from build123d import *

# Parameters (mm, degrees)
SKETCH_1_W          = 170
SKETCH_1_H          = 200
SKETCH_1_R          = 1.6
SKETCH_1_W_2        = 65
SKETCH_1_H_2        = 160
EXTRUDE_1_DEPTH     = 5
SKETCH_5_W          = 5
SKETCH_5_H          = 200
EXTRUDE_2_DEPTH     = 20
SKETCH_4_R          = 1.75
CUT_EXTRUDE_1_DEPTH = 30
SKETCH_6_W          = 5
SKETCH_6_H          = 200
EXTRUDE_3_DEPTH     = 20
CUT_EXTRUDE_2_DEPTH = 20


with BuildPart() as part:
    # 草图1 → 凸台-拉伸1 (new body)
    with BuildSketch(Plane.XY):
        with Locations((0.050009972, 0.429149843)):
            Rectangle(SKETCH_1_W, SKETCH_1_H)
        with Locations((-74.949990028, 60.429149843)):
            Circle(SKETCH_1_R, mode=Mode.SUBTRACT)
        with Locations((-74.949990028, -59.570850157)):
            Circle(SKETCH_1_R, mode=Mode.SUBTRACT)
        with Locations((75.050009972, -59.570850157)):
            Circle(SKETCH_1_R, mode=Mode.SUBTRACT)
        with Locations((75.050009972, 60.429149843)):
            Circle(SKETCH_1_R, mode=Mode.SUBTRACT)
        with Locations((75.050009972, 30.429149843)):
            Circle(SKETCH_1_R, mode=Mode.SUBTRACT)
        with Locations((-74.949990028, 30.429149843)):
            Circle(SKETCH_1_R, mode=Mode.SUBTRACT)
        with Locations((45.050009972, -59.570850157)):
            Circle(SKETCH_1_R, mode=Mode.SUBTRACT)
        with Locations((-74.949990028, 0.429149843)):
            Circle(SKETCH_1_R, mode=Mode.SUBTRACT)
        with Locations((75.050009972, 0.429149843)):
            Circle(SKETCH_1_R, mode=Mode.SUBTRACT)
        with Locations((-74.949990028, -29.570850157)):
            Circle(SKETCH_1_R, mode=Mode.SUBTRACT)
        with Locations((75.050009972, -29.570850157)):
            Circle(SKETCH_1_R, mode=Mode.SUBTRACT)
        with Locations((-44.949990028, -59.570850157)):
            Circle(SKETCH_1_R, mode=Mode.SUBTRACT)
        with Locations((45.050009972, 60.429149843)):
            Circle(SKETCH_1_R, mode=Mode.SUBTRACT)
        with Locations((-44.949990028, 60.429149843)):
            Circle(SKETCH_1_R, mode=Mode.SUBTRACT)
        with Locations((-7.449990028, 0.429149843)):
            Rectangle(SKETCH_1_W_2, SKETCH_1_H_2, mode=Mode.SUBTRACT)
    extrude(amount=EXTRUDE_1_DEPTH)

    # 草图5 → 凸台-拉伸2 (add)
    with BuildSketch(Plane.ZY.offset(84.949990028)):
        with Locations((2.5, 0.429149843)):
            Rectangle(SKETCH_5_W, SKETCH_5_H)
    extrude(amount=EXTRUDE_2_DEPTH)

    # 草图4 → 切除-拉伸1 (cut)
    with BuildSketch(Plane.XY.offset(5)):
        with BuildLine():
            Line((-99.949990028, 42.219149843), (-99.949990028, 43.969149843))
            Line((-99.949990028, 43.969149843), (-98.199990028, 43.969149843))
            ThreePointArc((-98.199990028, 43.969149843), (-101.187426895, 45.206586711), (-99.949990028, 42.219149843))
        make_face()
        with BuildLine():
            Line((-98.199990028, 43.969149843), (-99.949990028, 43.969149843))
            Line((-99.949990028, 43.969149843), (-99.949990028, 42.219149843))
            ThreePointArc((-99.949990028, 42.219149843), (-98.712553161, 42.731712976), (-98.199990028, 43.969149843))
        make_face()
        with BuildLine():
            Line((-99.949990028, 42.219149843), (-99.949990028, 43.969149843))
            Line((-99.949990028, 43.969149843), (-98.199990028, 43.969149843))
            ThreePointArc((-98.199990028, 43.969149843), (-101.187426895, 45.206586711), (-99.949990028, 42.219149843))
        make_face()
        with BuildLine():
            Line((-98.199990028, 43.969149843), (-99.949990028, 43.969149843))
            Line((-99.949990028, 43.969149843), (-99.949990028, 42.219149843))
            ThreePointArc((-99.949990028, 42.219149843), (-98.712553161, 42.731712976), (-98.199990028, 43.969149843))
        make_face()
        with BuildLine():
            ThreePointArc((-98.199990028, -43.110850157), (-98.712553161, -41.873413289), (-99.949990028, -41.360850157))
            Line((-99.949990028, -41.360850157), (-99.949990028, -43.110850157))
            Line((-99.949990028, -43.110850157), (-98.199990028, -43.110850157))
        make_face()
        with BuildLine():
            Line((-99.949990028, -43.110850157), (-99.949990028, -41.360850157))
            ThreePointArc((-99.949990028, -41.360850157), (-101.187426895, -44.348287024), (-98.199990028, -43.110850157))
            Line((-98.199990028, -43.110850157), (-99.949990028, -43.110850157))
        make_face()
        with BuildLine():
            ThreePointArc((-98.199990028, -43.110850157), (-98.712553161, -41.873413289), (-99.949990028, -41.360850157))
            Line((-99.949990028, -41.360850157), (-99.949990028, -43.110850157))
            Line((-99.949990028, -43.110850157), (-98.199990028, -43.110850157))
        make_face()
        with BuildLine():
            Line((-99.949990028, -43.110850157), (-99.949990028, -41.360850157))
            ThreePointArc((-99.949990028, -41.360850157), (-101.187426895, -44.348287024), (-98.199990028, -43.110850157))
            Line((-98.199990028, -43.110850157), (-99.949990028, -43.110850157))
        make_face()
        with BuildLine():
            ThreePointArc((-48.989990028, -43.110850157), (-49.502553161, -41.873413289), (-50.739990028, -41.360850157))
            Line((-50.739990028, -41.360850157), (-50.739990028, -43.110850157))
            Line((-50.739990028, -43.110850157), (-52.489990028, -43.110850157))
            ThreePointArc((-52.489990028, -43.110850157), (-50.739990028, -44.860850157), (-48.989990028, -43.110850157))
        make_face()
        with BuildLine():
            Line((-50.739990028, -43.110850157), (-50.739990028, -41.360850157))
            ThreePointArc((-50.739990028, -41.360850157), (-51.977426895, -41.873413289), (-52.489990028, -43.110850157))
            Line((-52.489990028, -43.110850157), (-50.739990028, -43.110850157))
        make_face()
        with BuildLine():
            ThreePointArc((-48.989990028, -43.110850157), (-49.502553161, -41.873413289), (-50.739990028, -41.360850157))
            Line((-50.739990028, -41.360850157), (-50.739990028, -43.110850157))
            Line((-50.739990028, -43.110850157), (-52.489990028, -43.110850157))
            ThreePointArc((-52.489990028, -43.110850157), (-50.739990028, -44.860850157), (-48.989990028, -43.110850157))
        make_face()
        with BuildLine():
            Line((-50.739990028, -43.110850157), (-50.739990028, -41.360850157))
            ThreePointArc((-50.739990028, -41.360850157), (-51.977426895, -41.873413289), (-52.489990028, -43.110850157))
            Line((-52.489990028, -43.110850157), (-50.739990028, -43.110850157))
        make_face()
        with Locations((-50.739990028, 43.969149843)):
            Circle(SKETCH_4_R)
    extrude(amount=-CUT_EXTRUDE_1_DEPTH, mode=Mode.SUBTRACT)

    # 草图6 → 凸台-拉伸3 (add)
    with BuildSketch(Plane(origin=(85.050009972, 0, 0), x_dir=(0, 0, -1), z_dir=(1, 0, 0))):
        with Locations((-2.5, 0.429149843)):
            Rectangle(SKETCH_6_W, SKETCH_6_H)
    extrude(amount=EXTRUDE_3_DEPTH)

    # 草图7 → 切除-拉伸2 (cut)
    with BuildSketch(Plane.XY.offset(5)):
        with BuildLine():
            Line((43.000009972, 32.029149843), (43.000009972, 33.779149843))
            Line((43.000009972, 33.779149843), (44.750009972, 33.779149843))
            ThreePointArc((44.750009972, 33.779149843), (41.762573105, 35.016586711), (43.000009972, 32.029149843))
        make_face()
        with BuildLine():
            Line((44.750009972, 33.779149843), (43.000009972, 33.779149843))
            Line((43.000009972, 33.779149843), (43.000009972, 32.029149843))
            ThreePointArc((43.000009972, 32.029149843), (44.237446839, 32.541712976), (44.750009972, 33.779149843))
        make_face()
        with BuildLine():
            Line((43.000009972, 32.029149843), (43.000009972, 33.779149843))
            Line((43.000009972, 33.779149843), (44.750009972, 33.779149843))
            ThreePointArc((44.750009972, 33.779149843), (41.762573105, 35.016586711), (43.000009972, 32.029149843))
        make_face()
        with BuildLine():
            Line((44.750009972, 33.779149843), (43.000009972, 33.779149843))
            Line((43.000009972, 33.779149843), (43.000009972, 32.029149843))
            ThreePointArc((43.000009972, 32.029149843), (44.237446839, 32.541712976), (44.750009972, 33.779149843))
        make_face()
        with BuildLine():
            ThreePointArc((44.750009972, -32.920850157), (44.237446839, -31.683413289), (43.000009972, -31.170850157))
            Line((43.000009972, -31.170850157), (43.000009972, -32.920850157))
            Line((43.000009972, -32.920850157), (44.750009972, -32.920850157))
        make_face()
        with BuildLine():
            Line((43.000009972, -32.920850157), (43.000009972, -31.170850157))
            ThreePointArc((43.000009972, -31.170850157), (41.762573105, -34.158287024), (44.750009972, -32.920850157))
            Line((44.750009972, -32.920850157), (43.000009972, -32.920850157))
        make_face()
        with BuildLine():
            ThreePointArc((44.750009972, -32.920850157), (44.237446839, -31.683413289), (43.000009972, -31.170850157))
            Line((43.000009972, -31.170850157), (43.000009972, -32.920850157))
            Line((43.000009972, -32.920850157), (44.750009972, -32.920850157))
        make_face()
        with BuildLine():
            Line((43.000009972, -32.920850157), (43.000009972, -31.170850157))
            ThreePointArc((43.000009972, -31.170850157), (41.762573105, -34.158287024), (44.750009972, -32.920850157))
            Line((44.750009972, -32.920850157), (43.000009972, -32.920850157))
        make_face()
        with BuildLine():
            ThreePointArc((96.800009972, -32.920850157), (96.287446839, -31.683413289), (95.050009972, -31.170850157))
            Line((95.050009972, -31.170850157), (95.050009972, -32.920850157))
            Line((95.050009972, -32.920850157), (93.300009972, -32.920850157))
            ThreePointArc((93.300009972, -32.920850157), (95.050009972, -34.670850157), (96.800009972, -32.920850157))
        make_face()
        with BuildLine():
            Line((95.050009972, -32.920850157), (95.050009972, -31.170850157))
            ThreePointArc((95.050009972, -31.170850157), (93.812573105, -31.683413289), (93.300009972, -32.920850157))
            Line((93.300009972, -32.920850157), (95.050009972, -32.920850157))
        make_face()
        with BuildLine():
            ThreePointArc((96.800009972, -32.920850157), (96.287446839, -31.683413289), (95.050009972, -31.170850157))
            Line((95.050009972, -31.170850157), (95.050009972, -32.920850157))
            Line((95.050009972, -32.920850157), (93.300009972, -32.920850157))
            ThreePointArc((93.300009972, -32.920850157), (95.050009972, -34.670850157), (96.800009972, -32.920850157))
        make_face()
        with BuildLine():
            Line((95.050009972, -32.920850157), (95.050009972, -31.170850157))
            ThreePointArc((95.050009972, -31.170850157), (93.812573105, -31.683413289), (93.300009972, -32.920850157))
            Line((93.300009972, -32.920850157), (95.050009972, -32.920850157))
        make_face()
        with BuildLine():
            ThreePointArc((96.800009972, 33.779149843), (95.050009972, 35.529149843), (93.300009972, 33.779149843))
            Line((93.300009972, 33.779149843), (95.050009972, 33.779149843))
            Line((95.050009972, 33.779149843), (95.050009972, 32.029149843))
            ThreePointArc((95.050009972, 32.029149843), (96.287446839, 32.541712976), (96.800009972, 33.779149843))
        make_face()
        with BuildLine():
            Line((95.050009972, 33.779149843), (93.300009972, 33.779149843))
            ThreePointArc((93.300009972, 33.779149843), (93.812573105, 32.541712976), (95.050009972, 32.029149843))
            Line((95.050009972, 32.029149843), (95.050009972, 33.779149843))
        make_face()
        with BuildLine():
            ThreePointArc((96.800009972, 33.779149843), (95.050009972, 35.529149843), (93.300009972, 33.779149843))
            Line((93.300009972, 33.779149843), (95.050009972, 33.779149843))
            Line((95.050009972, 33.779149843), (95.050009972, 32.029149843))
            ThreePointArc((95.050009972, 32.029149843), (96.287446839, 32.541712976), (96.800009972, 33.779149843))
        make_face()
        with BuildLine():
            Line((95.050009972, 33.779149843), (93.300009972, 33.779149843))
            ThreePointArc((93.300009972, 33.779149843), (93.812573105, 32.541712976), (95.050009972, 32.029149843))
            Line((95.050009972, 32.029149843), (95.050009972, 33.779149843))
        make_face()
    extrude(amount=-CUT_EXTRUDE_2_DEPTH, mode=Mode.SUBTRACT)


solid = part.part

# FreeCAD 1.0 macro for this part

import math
import FreeCAD as App
import Part
import Sketcher
Q = App.Units.Quantity


def add_polygon(sketch, points):
    """Adds a closed chain of lines whose ends are joined by coincident constraints."""
    first, n = sketch.GeometryCount, len(points)
    for a, b in zip(points, points[1:] + points[:1]):
        sketch.addGeometry(Part.LineSegment(App.Vector(*a, 0), App.Vector(*b, 0)), False)
    for i in range(n):
        sketch.addConstraint(Sketcher.Constraint("Coincident", first + i, 2, first + (i + 1) % n, 1))

doc = App.newDocument("Part")
params = doc.addObject("Spreadsheet::Sheet", "Params")
for row, (alias, value) in enumerate([
    ("sketch1_diameter", "3.2 mm"),
    ("sketch1_width", "170 mm"),
    ("sketch1_width2", "65 mm"),
    ("sketch1_height", "200 mm"),
    ("sketch1_height2", "160 mm"),
    ("pad1_length", "5 mm"),
    ("sketch2_width", "200 mm"),
    ("sketch2_height", "5 mm"),
    ("pad2_length", "20 mm"),
    ("sketch3_diameter", "3.5 mm"),
    ("pocket1_length", "30 mm"),
    ("sketch4_width", "200 mm"),
    ("sketch4_height", "5 mm"),
    ("pad3_length", "20 mm"),
    ("sketch5_radius", "1.75 mm"),
    ("pocket2_length", "20 mm"),
], start=1):
    params.set(f"A{row}", alias)
    params.set(f"B{row}", "=" + value)
    params.setAlias(f"B{row}", alias)

body = doc.addObject("PartDesign::Body", "Body")

# Sketch on XY plane
sketch1 = body.newObject("Sketcher::SketchObject", "Sketch")
sketch1.AttachmentSupport = (doc.getObject("XY_Plane"), [""])
sketch1.MapMode = "FlatFace"
add_polygon(sketch1, [(-84.9, 100.4), (-84.9, -99.6), (85.1, -99.6), (85.1, 100.4)])  # lines 0-3
sketch1.addGeometry(Part.Circle(App.Vector(-74.9, -59.6, 0), App.Vector(0, 0, 1), 1.6), False)  # 4
sketch1.addGeometry(Part.Circle(App.Vector(-44.9, -59.6, 0), App.Vector(0, 0, 1), 1.6), False)  # 5
sketch1.addGeometry(Part.Circle(App.Vector(-74.9, -29.6, 0), App.Vector(0, 0, 1), 1.6), False)  # 6
sketch1.addGeometry(Part.Circle(App.Vector(45.1, -59.6, 0), App.Vector(0, 0, 1), 1.6), False)  # 7
sketch1.addGeometry(Part.Circle(App.Vector(75.1, -59.6, 0), App.Vector(0, 0, 1), 1.6), False)  # 8
sketch1.addGeometry(Part.Circle(App.Vector(75.1, -29.6, 0), App.Vector(0, 0, 1), 1.6), False)  # 9
sketch1.addGeometry(Part.Circle(App.Vector(-74.9, 0.4, 0), App.Vector(0, 0, 1), 1.6), False)  # 10
sketch1.addGeometry(Part.Circle(App.Vector(-74.9, 30.4, 0), App.Vector(0, 0, 1), 1.6), False)  # 11
add_polygon(sketch1, [(25.1, -79.6), (-39.9, -79.6), (-39.9, 80.4), (25.1, 80.4)])  # lines 12-15
sketch1.addGeometry(Part.Circle(App.Vector(-74.9, 60.4, 0), App.Vector(0, 0, 1), 1.6), False)  # 16
sketch1.addGeometry(Part.Circle(App.Vector(-44.9, 60.4, 0), App.Vector(0, 0, 1), 1.6), False)  # 17
sketch1.addGeometry(Part.Circle(App.Vector(75.1, 0.4, 0), App.Vector(0, 0, 1), 1.6), False)  # 18
sketch1.addGeometry(Part.Circle(App.Vector(75.1, 30.4, 0), App.Vector(0, 0, 1), 1.6), False)  # 19
sketch1.addGeometry(Part.Circle(App.Vector(45.1, 60.4, 0), App.Vector(0, 0, 1), 1.6), False)  # 20
sketch1.addGeometry(Part.Circle(App.Vector(75.1, 60.4, 0), App.Vector(0, 0, 1), 1.6), False)  # 21
sketch1.addConstraint([
    Sketcher.Constraint("Vertical", 0),
    Sketcher.Constraint("Horizontal", 1),
    Sketcher.Constraint("Vertical", 2),
    Sketcher.Constraint("Horizontal", 3),
    Sketcher.Constraint("Horizontal", 12),
    Sketcher.Constraint("Vertical", 13),
    Sketcher.Constraint("Horizontal", 14),
    Sketcher.Constraint("Vertical", 15),
    Sketcher.Constraint("Equal", 4, 5),
    Sketcher.Constraint("Equal", 5, 6),
    Sketcher.Constraint("Equal", 6, 7),
    Sketcher.Constraint("Equal", 7, 8),
    Sketcher.Constraint("Equal", 8, 9),
    Sketcher.Constraint("Equal", 9, 10),
    Sketcher.Constraint("Equal", 10, 11),
    Sketcher.Constraint("Equal", 11, 16),
    Sketcher.Constraint("Equal", 16, 17),
    Sketcher.Constraint("Equal", 17, 18),
    Sketcher.Constraint("Equal", 18, 19),
    Sketcher.Constraint("Equal", 19, 20),
    Sketcher.Constraint("Equal", 20, 21),
    Sketcher.Constraint("Horizontal", 4, 3, 5, 3),
    Sketcher.Constraint("Horizontal", 5, 3, 7, 3),
    Sketcher.Constraint("Horizontal", 7, 3, 8, 3),
    Sketcher.Constraint("Horizontal", 6, 3, 9, 3),
    Sketcher.Constraint("Horizontal", 16, 3, 17, 3),
    Sketcher.Constraint("Horizontal", 10, 3, 18, 3),
    Sketcher.Constraint("Horizontal", 11, 3, 19, 3),
    Sketcher.Constraint("Horizontal", 17, 3, 20, 3),
    Sketcher.Constraint("Horizontal", 20, 3, 21, 3),
    Sketcher.Constraint("Vertical", 4, 3, 6, 3),
    Sketcher.Constraint("Vertical", 8, 3, 9, 3),
    Sketcher.Constraint("Vertical", 6, 3, 10, 3),
    Sketcher.Constraint("Vertical", 10, 3, 11, 3),
    Sketcher.Constraint("Vertical", 11, 3, 16, 3),
    Sketcher.Constraint("Vertical", 5, 3, 17, 3),
    Sketcher.Constraint("Vertical", 9, 3, 18, 3),
    Sketcher.Constraint("Vertical", 18, 3, 19, 3),
    Sketcher.Constraint("Vertical", 7, 3, 20, 3),
    Sketcher.Constraint("Vertical", 19, 3, 21, 3),
    Sketcher.Constraint("Diameter", 4, Q("3.2 mm")),
    Sketcher.Constraint("DistanceX", 1, 1, 1, 2, Q("170 mm")),
    Sketcher.Constraint("DistanceX", 12, 2, 12, 1, Q("65 mm")),
    Sketcher.Constraint("DistanceY", 0, 2, 0, 1, Q("200 mm")),
    Sketcher.Constraint("DistanceY", 13, 1, 13, 2, Q("160 mm")),
    Sketcher.Constraint("DistanceX", 4, 3, 5, 3, Q("30 mm")),
    Sketcher.Constraint("DistanceY", 4, 3, 6, 3, Q("30 mm")),
    Sketcher.Constraint("DistanceX", 5, 3, 7, 3, Q("90 mm")),
    Sketcher.Constraint("DistanceX", 7, 3, 8, 3, Q("30 mm")),
    Sketcher.Constraint("DistanceY", 6, 3, 10, 3, Q("30 mm")),
    Sketcher.Constraint("DistanceY", 10, 3, 11, 3, Q("30 mm")),
    Sketcher.Constraint("DistanceY", 11, 3, 16, 3, Q("30 mm")),
    Sketcher.Constraint("DistanceX", 0, 2, 4, 3, Q("10 mm")),
    Sketcher.Constraint("DistanceY", 0, 2, 4, 3, Q("40 mm")),
    Sketcher.Constraint("DistanceX", 5, 3, 12, 2, Q("5 mm")),
    Sketcher.Constraint("DistanceY", 12, 2, 5, 3, Q("20 mm")),
    Sketcher.Constraint("DistanceX", 4, 3, -1, 1, Q("74.94999 mm")),
    Sketcher.Constraint("DistanceY", 4, 3, -1, 1, Q("59.57085 mm")),
])
sketch1.setExpression("Constraints[48]", "Params.sketch1_diameter")
sketch1.setExpression("Constraints[49]", "Params.sketch1_width")
sketch1.setExpression("Constraints[50]", "Params.sketch1_width2")
sketch1.setExpression("Constraints[51]", "Params.sketch1_height")
sketch1.setExpression("Constraints[52]", "Params.sketch1_height2")
pad1 = body.newObject("PartDesign::Pad", "Pad")
pad1.Profile = sketch1
pad1.setExpression("Length", "Params.pad1_length")

# Sketch on YZ plane
sketch2 = body.newObject("Sketcher::SketchObject", "Sketch001")
sketch2.AttachmentSupport = (doc.getObject("YZ_Plane"), [""])
sketch2.MapMode = "FlatFace"
sketch2.AttachmentOffset = App.Placement(App.Vector(0, 0, -84.94999), App.Rotation())
add_polygon(sketch2, [(100, 0), (-100, 0), (-100, 5), (100, 5)])  # lines 0-3
sketch2.addConstraint([
    Sketcher.Constraint("Horizontal", 0),
    Sketcher.Constraint("Vertical", 1),
    Sketcher.Constraint("Horizontal", 2),
    Sketcher.Constraint("Vertical", 3),
    Sketcher.Constraint("PointOnObject", 0, 2, -1),
    Sketcher.Constraint("DistanceX", 0, 2, 0, 1, Q("200 mm")),
    Sketcher.Constraint("DistanceY", 1, 1, 1, 2, Q("5 mm")),
    Sketcher.Constraint("DistanceX", 0, 2, -1, 1, Q("99.57085 mm")),
])
sketch2.setExpression("Constraints[9]", "Params.sketch2_width")
sketch2.setExpression("Constraints[10]", "Params.sketch2_height")
pad2 = body.newObject("PartDesign::Pad", "Pad001")
pad2.Profile = sketch2
pad2.setExpression("Length", "Params.pad2_length")
pad2.Reversed = True

# Sketch on XY plane
sketch3 = body.newObject("Sketcher::SketchObject", "Sketch002")
sketch3.AttachmentSupport = (doc.getObject("XY_Plane"), [""])
sketch3.MapMode = "FlatFace"
sketch3.AttachmentOffset = App.Placement(App.Vector(0, 0, 5), App.Rotation())
sketch3.addGeometry([
    Part.ArcOfCircle(Part.Circle(App.Vector(-99.9, 44, 0), App.Vector(0, 0, 1), 1.8), math.radians(0), math.radians(270)),  # 0
    Part.ArcOfCircle(Part.Circle(App.Vector(-99.9, 44, 0), App.Vector(0, 0, 1), 1.8), math.radians(-90), math.radians(0)),  # 1
    Part.ArcOfCircle(Part.Circle(App.Vector(-99.9, -43.1, 0), App.Vector(0, 0, 1), 1.7), math.radians(0), math.radians(90)),  # 2
    Part.ArcOfCircle(Part.Circle(App.Vector(-99.9, -43.1, 0), App.Vector(0, 0, 1), 1.8), math.radians(90), math.radians(360)),  # 3
    Part.ArcOfCircle(Part.Circle(App.Vector(-50.7, -43.1, 0), App.Vector(0, 0, 1), 1.7), math.radians(0), math.radians(90)),  # 4
    Part.ArcOfCircle(Part.Circle(App.Vector(-50.7, -43.1, 0), App.Vector(0, 0, 1), 1.7), math.radians(90), math.radians(180)),  # 5
    Part.ArcOfCircle(Part.Circle(App.Vector(-50.7, -43.1, 0), App.Vector(0, 0, 1), 1.8), math.radians(180), math.radians(360)),  # 6
    Part.Circle(App.Vector(-50.7, 44, 0), App.Vector(0, 0, 1), 1.8),  # 7
], False)
sketch3.addConstraint([
    Sketcher.Constraint("Tangent", 0, 1, 1, 2),
    Sketcher.Constraint("Coincident", 1, 1, 0, 2),
    Sketcher.Constraint("Tangent", 2, 1, 3, 2),
    Sketcher.Constraint("Coincident", 3, 1, 2, 2),
    Sketcher.Constraint("Tangent", 4, 2, 5, 1),
    Sketcher.Constraint("Tangent", 5, 2, 6, 1),
    Sketcher.Constraint("Tangent", 6, 2, 4, 1),
    Sketcher.Constraint("Equal", 1, 2),
    Sketcher.Constraint("Equal", 3, 4),
    Sketcher.Constraint("Equal", 6, 7),
    Sketcher.Constraint("Horizontal", 3, 3, 4, 3),
    Sketcher.Constraint("Horizontal", 1, 3, 7, 3),
    Sketcher.Constraint("Horizontal", 7, 3, 0, 1),
    Sketcher.Constraint("Horizontal", 6, 3, 2, 1),
    Sketcher.Constraint("Horizontal", 2, 1, 5, 2),
    Sketcher.Constraint("Horizontal", 5, 2, 6, 2),
    Sketcher.Constraint("Vertical", 1, 3, 2, 3),
    Sketcher.Constraint("Vertical", 6, 3, 7, 3),
    Sketcher.Constraint("Vertical", 3, 3, 1, 1),
    Sketcher.Constraint("Vertical", 1, 1, 3, 1),
    Sketcher.Constraint("Vertical", 7, 3, 4, 2),
    Sketcher.Constraint("Diameter", 7, Q("3.5 mm")),
    Sketcher.Constraint("DistanceY", 2, 3, 0, 3, Q("87.08 mm")),
    Sketcher.Constraint("DistanceX", 2, 3, 4, 3, Q("49.21 mm")),
    Sketcher.Constraint("DistanceX", 0, 3, -1, 1, Q("99.94999 mm")),
    Sketcher.Constraint("DistanceY", -1, 1, 0, 3, Q("43.96915 mm")),
])
sketch3.setExpression("Constraints[21]", "Params.sketch3_diameter")
pocket1 = body.newObject("PartDesign::Pocket", "Pocket")
pocket1.Profile = sketch3
pocket1.setExpression("Length", "Params.pocket1_length")

# Sketch on YZ plane
sketch4 = body.newObject("Sketcher::SketchObject", "Sketch003")
sketch4.AttachmentSupport = (doc.getObject("YZ_Plane"), [""])
sketch4.MapMode = "FlatFace"
sketch4.AttachmentOffset = App.Placement(App.Vector(0, 0, 85.05001), App.Rotation())
add_polygon(sketch4, [(100, 5), (-100, 5), (-100, 0), (100, 0)])  # lines 0-3
sketch4.addConstraint([
    Sketcher.Constraint("Horizontal", 0),
    Sketcher.Constraint("Vertical", 1),
    Sketcher.Constraint("Horizontal", 2),
    Sketcher.Constraint("Vertical", 3),
    Sketcher.Constraint("PointOnObject", 1, 2, -1),
    Sketcher.Constraint("DistanceX", 0, 2, 0, 1, Q("200 mm")),
    Sketcher.Constraint("DistanceY", 1, 2, 1, 1, Q("5 mm")),
    Sketcher.Constraint("DistanceX", 0, 2, -1, 1, Q("99.57085 mm")),
])
sketch4.setExpression("Constraints[9]", "Params.sketch4_width")
sketch4.setExpression("Constraints[10]", "Params.sketch4_height")
pad3 = body.newObject("PartDesign::Pad", "Pad002")
pad3.Profile = sketch4
pad3.setExpression("Length", "Params.pad3_length")

# Sketch on XY plane
sketch5 = body.newObject("Sketcher::SketchObject", "Sketch004")
sketch5.AttachmentSupport = (doc.getObject("XY_Plane"), [""])
sketch5.MapMode = "FlatFace"
sketch5.AttachmentOffset = App.Placement(App.Vector(0, 0, 5), App.Rotation())
sketch5.addGeometry([
    Part.ArcOfCircle(Part.Circle(App.Vector(43, 33.8, 0), App.Vector(0, 0, 1), 1.8), math.radians(0), math.radians(270)),  # 0
    Part.ArcOfCircle(Part.Circle(App.Vector(43, 33.8, 0), App.Vector(0, 0, 1), 1.8), math.radians(-90), math.radians(0)),  # 1
    Part.ArcOfCircle(Part.Circle(App.Vector(43, -32.9, 0), App.Vector(0, 0, 1), 1.7), math.radians(0), math.radians(90)),  # 2
    Part.ArcOfCircle(Part.Circle(App.Vector(43, -32.9, 0), App.Vector(0, 0, 1), 1.8), math.radians(90), math.radians(360)),  # 3
    Part.ArcOfCircle(Part.Circle(App.Vector(95.1, -32.9, 0), App.Vector(0, 0, 1), 1.7), math.radians(0), math.radians(90)),  # 4
    Part.ArcOfCircle(Part.Circle(App.Vector(95.1, -32.9, 0), App.Vector(0, 0, 1), 1.7), math.radians(90), math.radians(180)),  # 5
    Part.ArcOfCircle(Part.Circle(App.Vector(95.1, -32.9, 0), App.Vector(0, 0, 1), 1.8), math.radians(180), math.radians(360)),  # 6
    Part.ArcOfCircle(Part.Circle(App.Vector(95.1, 33.8, 0), App.Vector(0, 0, 1), 1.8), math.radians(0), math.radians(180)),  # 7
    Part.ArcOfCircle(Part.Circle(App.Vector(95.1, 33.8, 0), App.Vector(0, 0, 1), 1.8), math.radians(180), math.radians(270)),  # 8
    Part.ArcOfCircle(Part.Circle(App.Vector(95.1, 33.8, 0), App.Vector(0, 0, 1), 1.8), math.radians(-90), math.radians(0)),  # 9
], False)
sketch5.addConstraint([
    Sketcher.Constraint("Tangent", 0, 1, 1, 2),
    Sketcher.Constraint("Coincident", 1, 1, 0, 2),
    Sketcher.Constraint("Tangent", 2, 1, 3, 2),
    Sketcher.Constraint("Coincident", 3, 1, 2, 2),
    Sketcher.Constraint("Tangent", 4, 2, 5, 1),
    Sketcher.Constraint("Tangent", 5, 2, 6, 1),
    Sketcher.Constraint("Tangent", 6, 2, 4, 1),
    Sketcher.Constraint("Tangent", 7, 2, 8, 1),
    Sketcher.Constraint("Tangent", 8, 2, 9, 1),
    Sketcher.Constraint("Tangent", 9, 2, 7, 1),
    Sketcher.Constraint("Equal", 1, 2),
    Sketcher.Constraint("Equal", 3, 4),
    Sketcher.Constraint("Equal", 6, 7),
    Sketcher.Constraint("Horizontal", 3, 3, 4, 3),
    Sketcher.Constraint("Horizontal", 1, 3, 7, 3),
    Sketcher.Constraint("Horizontal", 9, 3, 0, 1),
    Sketcher.Constraint("Horizontal", 6, 3, 2, 1),
    Sketcher.Constraint("Horizontal", 2, 1, 5, 2),
    Sketcher.Constraint("Horizontal", 5, 2, 6, 2),
    Sketcher.Constraint("Horizontal", 0, 1, 7, 2),
    Sketcher.Constraint("Horizontal", 7, 2, 9, 2),
    Sketcher.Constraint("Vertical", 1, 3, 2, 3),
    Sketcher.Constraint("Vertical", 6, 3, 7, 3),
    Sketcher.Constraint("Vertical", 3, 3, 1, 1),
    Sketcher.Constraint("Vertical", 1, 1, 3, 1),
    Sketcher.Constraint("Vertical", 9, 3, 4, 2),
    Sketcher.Constraint("Vertical", 4, 2, 8, 2),
    Sketcher.Constraint("Radius", 0, Q("1.75 mm")),
    Sketcher.Constraint("DistanceY", 2, 3, 0, 3, Q("66.7 mm")),
    Sketcher.Constraint("DistanceX", 0, 1, 7, 3, Q("50.3 mm")),
    Sketcher.Constraint("DistanceX", -1, 1, 0, 3, Q("43.00001 mm")),
    Sketcher.Constraint("DistanceY", -1, 1, 0, 3, Q("33.77915 mm")),
])
sketch5.setExpression("Constraints[27]", "Params.sketch5_radius")
pocket2 = body.newObject("PartDesign::Pocket", "Pocket001")
pocket2.Profile = sketch5
pocket2.setExpression("Length", "Params.pocket2_length")

doc.recompute()
